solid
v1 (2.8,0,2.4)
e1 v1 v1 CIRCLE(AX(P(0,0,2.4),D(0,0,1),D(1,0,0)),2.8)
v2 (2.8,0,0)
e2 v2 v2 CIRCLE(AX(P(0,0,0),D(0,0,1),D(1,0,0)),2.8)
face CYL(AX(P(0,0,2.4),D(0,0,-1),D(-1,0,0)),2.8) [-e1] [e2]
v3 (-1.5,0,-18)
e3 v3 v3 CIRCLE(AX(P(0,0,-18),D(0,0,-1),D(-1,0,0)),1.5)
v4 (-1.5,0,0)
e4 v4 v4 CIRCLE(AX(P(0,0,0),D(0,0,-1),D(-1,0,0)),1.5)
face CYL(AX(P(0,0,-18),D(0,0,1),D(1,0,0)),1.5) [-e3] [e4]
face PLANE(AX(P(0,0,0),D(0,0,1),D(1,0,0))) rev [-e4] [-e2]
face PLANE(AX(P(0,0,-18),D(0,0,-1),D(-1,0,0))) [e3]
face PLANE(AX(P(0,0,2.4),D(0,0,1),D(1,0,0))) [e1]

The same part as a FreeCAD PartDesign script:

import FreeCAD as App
import Part
import Sketcher

doc = App.newDocument("Part")
body = doc.addObject("PartDesign::Body", "Body")

sketch1 = body.newObject("Sketcher::SketchObject", "Sketch")
sketch1.AttachmentSupport = (doc.getObject("XY_Plane"), [""])
sketch1.MapMode = "FlatFace"
sketch1.addGeometry(Part.Circle(App.Vector(0, 0, 0), App.Vector(0, 0, 1), 2.8), False)
sketch1.addConstraint(Sketcher.Constraint("Coincident", 0, 3, -1, 1))
sketch1.addConstraint(Sketcher.Constraint("Diameter", 0, 5.6))
pad1 = body.newObject("PartDesign::Pad", "Pad")
pad1.Profile = sketch1
pad1.Length = 2.4

sketch2 = body.newObject("Sketcher::SketchObject", "Sketch001")
sketch2.AttachmentSupport = (doc.getObject("XY_Plane"), [""])
sketch2.MapMode = "FlatFace"
sketch2.addGeometry(Part.Circle(App.Vector(0, 0, 0), App.Vector(0, 0, 1), 1.5), False)
sketch2.addConstraint(Sketcher.Constraint("Coincident", 0, 3, -1, 1))
sketch2.addConstraint(Sketcher.Constraint("Diameter", 0, 3.0))
pad2 = body.newObject("PartDesign::Pad", "Pad001")
pad2.Profile = sketch2
pad2.Length = 18
pad2.Reversed = True

doc.recompute()
